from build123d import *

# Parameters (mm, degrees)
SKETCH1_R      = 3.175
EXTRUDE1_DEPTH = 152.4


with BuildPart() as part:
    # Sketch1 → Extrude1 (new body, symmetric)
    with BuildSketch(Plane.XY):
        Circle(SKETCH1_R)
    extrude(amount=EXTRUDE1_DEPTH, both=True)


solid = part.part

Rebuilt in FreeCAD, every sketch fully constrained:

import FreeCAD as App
import Part
import Sketcher
from FreeCAD import Vector
Q = App.Units.Quantity

doc = App.newDocument("Part")
body = doc.addObject("PartDesign::Body", "Body")

# Sketch on XY plane
sketch1 = body.newObject("Sketcher::SketchObject", "Sketch")
sketch1.AttachmentSupport = (doc.getObject("XY_Plane"), [""])
sketch1.MapMode = "FlatFace"
sketch1.addGeometry(Part.Circle(Vector(0, 0, 0), Vector(0, 0, 1), 3.2), False)
sketch1.addConstraint([
    Sketcher.Constraint("Coincident", 0, 3, -1, 1),
    Sketcher.Constraint("Diameter", 0, Q("0.25 in")),
])
pad1 = body.newObject("PartDesign::Pad", "Pad")
pad1.Profile = sketch1
pad1.Length = Q("12 in")
pad1.Midplane = True

doc.recompute()
